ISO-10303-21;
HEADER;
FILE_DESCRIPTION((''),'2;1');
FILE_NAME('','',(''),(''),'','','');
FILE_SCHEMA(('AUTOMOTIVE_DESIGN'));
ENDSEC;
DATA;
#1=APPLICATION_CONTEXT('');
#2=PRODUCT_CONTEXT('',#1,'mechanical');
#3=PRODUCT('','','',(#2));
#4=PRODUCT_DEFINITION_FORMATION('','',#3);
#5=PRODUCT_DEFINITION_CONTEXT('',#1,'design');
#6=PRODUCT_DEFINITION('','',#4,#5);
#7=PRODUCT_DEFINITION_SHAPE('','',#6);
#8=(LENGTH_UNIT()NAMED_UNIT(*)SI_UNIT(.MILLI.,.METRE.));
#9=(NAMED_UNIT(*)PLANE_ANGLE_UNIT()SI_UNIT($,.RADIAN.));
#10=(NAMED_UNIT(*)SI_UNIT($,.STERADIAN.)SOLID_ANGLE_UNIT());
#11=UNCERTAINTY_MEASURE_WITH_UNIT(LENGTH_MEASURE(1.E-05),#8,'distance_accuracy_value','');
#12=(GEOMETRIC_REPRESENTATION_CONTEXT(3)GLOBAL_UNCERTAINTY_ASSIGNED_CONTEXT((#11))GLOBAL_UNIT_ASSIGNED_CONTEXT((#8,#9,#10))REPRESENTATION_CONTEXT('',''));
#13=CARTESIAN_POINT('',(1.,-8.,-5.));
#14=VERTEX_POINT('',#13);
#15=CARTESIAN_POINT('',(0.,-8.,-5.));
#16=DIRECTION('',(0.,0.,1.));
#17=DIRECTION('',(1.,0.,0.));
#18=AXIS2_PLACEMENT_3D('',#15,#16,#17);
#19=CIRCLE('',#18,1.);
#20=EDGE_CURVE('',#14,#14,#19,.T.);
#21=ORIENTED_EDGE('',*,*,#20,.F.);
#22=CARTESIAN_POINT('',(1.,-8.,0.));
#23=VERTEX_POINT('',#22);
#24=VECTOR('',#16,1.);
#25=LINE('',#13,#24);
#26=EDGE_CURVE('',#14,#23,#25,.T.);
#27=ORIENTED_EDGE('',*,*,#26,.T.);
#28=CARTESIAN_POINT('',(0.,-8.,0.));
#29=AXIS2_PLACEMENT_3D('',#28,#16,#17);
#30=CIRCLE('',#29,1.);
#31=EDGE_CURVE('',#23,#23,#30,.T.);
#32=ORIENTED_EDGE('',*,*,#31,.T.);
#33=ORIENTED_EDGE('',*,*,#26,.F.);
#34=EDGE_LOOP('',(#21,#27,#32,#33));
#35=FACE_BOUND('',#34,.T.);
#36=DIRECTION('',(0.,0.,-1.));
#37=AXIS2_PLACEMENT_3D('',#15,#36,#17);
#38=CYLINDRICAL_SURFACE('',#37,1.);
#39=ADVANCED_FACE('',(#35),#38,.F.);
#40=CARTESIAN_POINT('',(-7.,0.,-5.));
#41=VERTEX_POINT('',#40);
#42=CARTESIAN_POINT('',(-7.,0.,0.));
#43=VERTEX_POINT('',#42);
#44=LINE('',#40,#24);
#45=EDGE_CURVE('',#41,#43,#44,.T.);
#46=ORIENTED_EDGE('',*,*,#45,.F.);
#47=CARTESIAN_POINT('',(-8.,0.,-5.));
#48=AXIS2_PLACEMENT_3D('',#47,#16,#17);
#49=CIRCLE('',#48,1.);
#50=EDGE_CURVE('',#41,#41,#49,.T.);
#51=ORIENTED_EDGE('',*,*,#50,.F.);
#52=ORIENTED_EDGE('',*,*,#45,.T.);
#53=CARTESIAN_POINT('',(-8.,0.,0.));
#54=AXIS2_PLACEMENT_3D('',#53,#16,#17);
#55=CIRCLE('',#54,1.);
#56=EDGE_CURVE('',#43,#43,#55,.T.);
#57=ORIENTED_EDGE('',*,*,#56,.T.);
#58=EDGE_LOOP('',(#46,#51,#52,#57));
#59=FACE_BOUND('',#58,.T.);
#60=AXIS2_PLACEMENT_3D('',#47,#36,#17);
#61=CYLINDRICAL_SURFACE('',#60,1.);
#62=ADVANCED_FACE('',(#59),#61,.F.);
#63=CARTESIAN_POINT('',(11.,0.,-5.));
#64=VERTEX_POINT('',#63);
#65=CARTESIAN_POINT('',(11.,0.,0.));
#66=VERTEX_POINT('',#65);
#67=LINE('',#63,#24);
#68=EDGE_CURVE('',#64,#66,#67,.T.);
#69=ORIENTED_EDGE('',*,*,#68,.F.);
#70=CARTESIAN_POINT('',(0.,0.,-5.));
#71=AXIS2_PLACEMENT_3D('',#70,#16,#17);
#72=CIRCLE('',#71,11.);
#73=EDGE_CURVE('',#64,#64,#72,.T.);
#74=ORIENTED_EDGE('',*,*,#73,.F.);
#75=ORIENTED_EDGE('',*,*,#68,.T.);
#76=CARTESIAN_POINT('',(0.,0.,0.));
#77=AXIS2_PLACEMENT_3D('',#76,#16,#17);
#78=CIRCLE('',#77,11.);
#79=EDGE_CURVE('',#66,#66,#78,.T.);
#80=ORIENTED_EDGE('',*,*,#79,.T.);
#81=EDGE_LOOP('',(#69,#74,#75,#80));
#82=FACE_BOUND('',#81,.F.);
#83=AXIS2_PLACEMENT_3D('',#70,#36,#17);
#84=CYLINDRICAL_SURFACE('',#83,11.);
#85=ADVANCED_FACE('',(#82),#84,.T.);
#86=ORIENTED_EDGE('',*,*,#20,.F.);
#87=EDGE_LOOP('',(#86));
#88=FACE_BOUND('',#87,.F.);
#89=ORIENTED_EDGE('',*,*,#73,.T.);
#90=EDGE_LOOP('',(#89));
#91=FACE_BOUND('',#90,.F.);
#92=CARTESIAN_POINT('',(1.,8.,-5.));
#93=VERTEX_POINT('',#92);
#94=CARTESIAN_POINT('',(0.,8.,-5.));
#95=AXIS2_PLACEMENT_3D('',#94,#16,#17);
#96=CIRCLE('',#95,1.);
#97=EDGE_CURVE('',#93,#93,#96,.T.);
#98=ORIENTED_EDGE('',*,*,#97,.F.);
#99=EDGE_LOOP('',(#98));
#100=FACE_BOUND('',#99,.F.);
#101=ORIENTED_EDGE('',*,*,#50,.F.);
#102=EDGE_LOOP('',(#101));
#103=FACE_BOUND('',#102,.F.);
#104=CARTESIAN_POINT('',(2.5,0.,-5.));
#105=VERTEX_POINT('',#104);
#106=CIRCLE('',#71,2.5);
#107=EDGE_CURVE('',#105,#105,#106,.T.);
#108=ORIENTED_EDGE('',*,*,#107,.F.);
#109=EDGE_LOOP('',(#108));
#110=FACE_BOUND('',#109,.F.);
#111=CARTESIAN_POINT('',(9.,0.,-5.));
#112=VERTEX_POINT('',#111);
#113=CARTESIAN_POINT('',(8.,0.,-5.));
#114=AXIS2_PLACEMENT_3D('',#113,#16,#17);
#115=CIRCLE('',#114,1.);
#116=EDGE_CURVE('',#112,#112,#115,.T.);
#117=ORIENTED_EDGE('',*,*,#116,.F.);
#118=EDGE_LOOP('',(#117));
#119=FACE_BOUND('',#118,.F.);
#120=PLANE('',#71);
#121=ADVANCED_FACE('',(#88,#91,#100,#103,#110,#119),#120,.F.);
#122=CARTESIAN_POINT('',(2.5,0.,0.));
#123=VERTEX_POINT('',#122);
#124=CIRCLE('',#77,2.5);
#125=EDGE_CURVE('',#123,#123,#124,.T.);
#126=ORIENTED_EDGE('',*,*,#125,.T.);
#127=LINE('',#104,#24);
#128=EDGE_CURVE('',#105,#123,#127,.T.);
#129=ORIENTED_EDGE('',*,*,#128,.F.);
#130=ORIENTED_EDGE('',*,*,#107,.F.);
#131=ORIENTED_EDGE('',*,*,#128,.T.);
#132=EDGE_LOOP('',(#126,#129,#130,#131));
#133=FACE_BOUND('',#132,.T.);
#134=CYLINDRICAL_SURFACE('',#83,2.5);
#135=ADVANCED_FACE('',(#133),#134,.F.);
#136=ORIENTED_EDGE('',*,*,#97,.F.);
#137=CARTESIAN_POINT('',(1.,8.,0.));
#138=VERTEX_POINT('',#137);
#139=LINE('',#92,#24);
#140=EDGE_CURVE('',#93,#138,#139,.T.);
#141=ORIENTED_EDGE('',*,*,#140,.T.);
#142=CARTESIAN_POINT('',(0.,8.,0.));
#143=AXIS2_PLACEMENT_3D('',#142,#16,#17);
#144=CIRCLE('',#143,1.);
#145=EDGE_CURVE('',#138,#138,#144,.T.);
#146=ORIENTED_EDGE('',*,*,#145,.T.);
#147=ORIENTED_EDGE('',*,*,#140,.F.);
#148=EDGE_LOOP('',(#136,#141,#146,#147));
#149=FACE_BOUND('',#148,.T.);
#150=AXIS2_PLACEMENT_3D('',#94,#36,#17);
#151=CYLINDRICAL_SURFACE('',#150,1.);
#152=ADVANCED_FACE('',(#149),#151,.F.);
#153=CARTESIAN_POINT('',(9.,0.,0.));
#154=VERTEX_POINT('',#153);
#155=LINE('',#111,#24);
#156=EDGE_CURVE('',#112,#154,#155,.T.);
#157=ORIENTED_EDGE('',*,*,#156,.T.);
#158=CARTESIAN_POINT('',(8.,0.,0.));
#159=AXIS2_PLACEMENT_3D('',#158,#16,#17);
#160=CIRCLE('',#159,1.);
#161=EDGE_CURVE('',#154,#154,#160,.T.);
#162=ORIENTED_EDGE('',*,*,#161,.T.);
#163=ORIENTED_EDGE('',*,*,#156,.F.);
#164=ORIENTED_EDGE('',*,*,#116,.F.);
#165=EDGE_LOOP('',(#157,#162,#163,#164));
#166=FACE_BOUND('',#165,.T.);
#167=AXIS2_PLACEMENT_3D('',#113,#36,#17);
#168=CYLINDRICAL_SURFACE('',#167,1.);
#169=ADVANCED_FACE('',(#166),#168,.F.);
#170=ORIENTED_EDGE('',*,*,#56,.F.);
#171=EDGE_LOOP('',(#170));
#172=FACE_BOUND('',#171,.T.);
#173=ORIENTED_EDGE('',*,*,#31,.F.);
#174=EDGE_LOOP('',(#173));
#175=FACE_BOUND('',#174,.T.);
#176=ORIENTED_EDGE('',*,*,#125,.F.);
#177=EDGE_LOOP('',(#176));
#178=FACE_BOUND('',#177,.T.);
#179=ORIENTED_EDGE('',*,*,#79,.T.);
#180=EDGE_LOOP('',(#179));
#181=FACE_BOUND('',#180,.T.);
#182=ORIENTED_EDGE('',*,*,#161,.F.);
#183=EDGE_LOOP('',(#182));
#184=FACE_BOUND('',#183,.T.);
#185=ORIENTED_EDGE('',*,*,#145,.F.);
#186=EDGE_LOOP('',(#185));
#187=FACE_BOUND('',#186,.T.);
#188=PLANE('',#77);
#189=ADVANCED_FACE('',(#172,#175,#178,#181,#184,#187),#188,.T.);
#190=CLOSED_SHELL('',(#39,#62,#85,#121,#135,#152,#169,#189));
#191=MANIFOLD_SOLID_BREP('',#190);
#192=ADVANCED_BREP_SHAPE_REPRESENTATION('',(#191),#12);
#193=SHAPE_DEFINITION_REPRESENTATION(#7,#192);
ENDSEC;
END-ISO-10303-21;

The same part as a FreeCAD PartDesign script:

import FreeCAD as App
import Part
import Sketcher

V = App.Vector

doc = App.newDocument("Part")
body = doc.addObject("PartDesign::Body", "Body")

# Sketch on XY plane
sketch1 = doc.addObject("Sketcher::SketchObject", "Sketch")
body.addObject(sketch1)
sketch1.AttachmentSupport = (doc.XY_Plane, [""])
sketch1.MapMode = "FlatFace"
sketch1.AttachmentOffset = App.Placement(V(0, 0, -5), App.Rotation())
sketch1.addGeometry([
    Part.Circle(V(0, 0, 0), V(0, 0, 1), 11),  # 0
    Part.Circle(V(0, -8, 0), V(0, 0, 1), 1),  # 1
    Part.Circle(V(-8, 0, 0), V(0, 0, 1), 1),  # 2
    Part.Circle(V(0, 0, 0), V(0, 0, 1), 2.5),  # 3
    Part.Circle(V(8, 0, 0), V(0, 0, 1), 1),  # 4
    Part.Circle(V(0, 8, 0), V(0, 0, 1), 1),  # 5
], False)
sketch1.addConstraint([
    Sketcher.Constraint("Coincident", 0, 3, -1, 1),
    Sketcher.Constraint("Coincident", 3, 3, -1, 1),
    Sketcher.Constraint("Equal", 1, 2),
    Sketcher.Constraint("Equal", 2, 4),
    Sketcher.Constraint("Equal", 4, 5),
    Sketcher.Constraint("Symmetric", 2, 3, 4, 3, -1, 1),
    Sketcher.Constraint("Symmetric", 1, 3, 5, 3, -1, 1),
    Sketcher.Constraint("PointOnObject", 1, 3, -2),
    Sketcher.Constraint("PointOnObject", 2, 3, -1),
    Sketcher.Constraint("Diameter", 0, 22.0),
    Sketcher.Constraint("Diameter", 1, 2.0),
    Sketcher.Constraint("Diameter", 3, 5.0),
    Sketcher.Constraint("DistanceY", 1, 3, -1, 1, 8.0),
    Sketcher.Constraint("DistanceX", 2, 3, -1, 1, 8.0),
])
pad1 = doc.addObject("PartDesign::Pad", "Pad")
body.addObject(pad1)
pad1.Profile = sketch1
pad1.Length = 5

doc.recompute()
